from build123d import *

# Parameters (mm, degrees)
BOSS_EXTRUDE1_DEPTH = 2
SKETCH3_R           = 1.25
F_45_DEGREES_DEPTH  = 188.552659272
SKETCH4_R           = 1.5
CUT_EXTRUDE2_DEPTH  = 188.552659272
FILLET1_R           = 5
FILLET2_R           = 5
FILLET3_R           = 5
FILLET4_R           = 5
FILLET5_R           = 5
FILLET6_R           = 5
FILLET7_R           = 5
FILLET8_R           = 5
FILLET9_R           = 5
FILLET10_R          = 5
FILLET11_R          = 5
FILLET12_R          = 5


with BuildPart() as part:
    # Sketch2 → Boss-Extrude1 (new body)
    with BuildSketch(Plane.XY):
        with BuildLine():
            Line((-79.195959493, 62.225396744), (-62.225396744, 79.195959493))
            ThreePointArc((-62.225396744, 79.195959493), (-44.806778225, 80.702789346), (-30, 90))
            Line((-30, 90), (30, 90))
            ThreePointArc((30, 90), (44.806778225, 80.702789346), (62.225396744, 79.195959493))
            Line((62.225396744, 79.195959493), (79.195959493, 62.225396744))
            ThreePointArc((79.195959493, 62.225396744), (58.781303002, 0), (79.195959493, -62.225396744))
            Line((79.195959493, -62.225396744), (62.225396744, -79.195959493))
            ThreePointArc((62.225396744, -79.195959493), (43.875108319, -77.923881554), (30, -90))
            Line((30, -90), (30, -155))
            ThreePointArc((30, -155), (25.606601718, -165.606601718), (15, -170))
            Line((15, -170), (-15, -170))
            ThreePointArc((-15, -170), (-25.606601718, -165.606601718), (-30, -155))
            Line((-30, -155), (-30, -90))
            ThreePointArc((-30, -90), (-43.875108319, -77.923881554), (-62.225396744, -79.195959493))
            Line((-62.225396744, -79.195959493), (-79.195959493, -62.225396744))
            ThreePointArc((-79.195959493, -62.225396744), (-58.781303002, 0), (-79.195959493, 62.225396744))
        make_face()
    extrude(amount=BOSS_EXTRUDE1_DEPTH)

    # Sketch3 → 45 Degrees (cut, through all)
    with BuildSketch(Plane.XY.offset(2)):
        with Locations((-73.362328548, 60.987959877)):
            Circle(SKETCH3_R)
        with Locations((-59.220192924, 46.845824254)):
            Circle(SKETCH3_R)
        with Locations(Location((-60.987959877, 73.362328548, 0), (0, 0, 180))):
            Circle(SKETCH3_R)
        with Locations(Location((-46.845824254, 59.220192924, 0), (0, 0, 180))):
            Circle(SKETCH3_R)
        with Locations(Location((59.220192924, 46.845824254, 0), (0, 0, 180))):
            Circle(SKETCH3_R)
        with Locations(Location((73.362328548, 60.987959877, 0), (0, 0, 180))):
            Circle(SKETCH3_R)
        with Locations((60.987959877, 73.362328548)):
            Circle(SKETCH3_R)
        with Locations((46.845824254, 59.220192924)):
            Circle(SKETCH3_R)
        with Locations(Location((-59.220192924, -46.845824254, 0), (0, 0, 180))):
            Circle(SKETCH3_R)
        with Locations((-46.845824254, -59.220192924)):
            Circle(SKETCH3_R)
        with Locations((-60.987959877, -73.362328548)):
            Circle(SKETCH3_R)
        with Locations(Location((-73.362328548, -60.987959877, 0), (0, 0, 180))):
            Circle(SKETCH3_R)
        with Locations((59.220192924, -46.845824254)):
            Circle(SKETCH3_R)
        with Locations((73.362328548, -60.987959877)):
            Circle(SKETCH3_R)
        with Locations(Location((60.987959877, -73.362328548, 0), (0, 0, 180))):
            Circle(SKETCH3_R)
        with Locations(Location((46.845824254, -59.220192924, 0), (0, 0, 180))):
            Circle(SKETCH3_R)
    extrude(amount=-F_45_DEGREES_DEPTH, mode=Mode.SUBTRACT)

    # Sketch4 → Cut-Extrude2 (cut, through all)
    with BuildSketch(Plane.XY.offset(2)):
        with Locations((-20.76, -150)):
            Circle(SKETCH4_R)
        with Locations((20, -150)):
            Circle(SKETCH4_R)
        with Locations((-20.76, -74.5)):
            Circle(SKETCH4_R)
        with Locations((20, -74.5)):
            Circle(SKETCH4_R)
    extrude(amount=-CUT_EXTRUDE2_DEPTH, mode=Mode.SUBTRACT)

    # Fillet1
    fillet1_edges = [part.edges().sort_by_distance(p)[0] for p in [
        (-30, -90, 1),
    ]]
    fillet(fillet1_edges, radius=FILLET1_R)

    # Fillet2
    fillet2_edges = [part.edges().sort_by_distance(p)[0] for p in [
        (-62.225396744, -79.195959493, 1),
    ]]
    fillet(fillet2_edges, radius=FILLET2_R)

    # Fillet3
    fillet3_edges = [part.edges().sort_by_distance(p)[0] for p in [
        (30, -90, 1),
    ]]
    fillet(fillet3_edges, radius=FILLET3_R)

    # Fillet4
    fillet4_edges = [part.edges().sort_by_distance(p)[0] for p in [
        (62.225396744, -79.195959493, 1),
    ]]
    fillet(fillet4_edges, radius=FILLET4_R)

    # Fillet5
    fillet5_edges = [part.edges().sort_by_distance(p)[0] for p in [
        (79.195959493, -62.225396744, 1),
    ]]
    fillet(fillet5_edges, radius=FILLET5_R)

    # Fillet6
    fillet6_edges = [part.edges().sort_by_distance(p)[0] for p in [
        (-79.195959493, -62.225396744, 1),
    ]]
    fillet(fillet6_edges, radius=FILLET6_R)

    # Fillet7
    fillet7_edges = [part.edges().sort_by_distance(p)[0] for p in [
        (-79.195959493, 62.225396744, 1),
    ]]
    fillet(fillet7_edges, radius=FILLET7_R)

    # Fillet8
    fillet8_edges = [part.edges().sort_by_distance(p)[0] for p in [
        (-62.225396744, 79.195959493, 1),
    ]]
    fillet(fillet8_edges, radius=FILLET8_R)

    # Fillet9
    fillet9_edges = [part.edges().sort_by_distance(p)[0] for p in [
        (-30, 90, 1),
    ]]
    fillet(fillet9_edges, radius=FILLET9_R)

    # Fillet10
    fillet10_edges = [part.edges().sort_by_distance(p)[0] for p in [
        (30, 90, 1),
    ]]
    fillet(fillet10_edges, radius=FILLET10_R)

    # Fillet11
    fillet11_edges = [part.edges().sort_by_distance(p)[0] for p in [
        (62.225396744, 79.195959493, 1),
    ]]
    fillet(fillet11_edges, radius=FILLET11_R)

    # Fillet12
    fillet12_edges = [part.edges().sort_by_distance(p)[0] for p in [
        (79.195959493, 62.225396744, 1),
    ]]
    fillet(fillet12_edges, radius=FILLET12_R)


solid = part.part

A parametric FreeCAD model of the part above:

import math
import FreeCAD as App
import Part
import Sketcher
Q = App.Units.Quantity


def edges_at(feature, points):
    """Names of the edges that pass closest to the given points."""
    edges = feature.Shape.Edges
    near = lambda p: min(range(len(edges)), key=lambda i: edges[i].distToShape(Part.Vertex(*p))[0])
    return sorted({f"Edge{near(p) + 1}" for p in points})

doc = App.newDocument("Part")
params = doc.addObject("Spreadsheet::Sheet", "Params")
for row, (alias, value) in enumerate([
    ("sketch1_radius", "15 mm"),
    ("sketch1_width", "30 mm"),
    ("sketch1_height", "65 mm"),
    ("sketch1_length", "24 mm"),
    ("pad1_length", "2 mm"),
    ("sketch2_diameter", "2.5 mm"),
    ("sketch3_diameter", "3 mm"),
    ("fillet_radius", "5 mm"),
    ("fillet2_radius", "5 mm"),
    ("fillet3_radius", "5 mm"),
    ("fillet4_radius", "5 mm"),
    ("fillet5_radius", "5 mm"),
    ("fillet6_radius", "5 mm"),
    ("fillet7_radius", "5 mm"),
    ("fillet8_radius", "5 mm"),
    ("fillet9_radius", "5 mm"),
    ("fillet10_radius", "5 mm"),
    ("fillet11_radius", "5 mm"),
    ("fillet12_radius", "5 mm"),
], start=1):
    params.set(f"A{row}", alias)
    params.set(f"B{row}", "=" + value)
    params.setAlias(f"B{row}", alias)

body = doc.addObject("PartDesign::Body", "Body")

# Sketch on XY plane
sketch1 = body.newObject("Sketcher::SketchObject", "Sketch")
sketch1.AttachmentSupport = (doc.getObject("XY_Plane"), [""])
sketch1.MapMode = "FlatFace"
sketch1.addGeometry([
    Part.LineSegment(App.Vector(-62, 79, 0), App.Vector(-79, 62, 0)),  # 0
    Part.ArcOfCircle(Part.Circle(App.Vector(-164, 0, 0), App.Vector(0, 0, 1), 105), math.radians(-36), math.radians(36)),  # 1
    Part.LineSegment(App.Vector(-79, -62, 0), App.Vector(-62, -79, 0)),  # 2
    Part.ArcOfCircle(Part.Circle(App.Vector(-52, -101, 0), App.Vector(0, 0, 1), 24), math.radians(26), math.radians(116)),  # 3
    Part.LineSegment(App.Vector(-30, -90, 0), App.Vector(-30, -155, 0)),  # 4
    Part.ArcOfCircle(Part.Circle(App.Vector(-15, -155, 0), App.Vector(0, 0, 1), 15), math.radians(180), math.radians(270)),  # 5
    Part.LineSegment(App.Vector(-15, -170, 0), App.Vector(15, -170, 0)),  # 6
    Part.ArcOfCircle(Part.Circle(App.Vector(15, -155, 0), App.Vector(0, 0, 1), 15), math.radians(-90), math.radians(0)),  # 7
    Part.LineSegment(App.Vector(30, -155, 0), App.Vector(30, -90, 0)),  # 8
    Part.ArcOfCircle(Part.Circle(App.Vector(52, -101, 0), App.Vector(0, 0, 1), 24), math.radians(64), math.radians(154)),  # 9
    Part.LineSegment(App.Vector(62, -79, 0), App.Vector(79, -62, 0)),  # 10
    Part.ArcOfCircle(Part.Circle(App.Vector(164, 0, 0), App.Vector(0, 0, 1), 105), math.radians(144), math.radians(216)),  # 11
    Part.LineSegment(App.Vector(79, 62, 0), App.Vector(62, 79, 0)),  # 12
    Part.ArcOfCircle(Part.Circle(App.Vector(57, 116, 0), App.Vector(0, 0, 1), 37), math.radians(-136), math.radians(-81)),  # 13
    Part.LineSegment(App.Vector(30, 90, 0), App.Vector(-30, 90, 0)),  # 14
    Part.ArcOfCircle(Part.Circle(App.Vector(-57, 116, 0), App.Vector(0, 0, 1), 37), math.radians(-99), math.radians(-44)),  # 15
], False)
sketch1.addConstraint([
    Sketcher.Constraint("Coincident", 0, 2, 1, 2),
    Sketcher.Constraint("Coincident", 1, 1, 2, 1),
    Sketcher.Constraint("Coincident", 2, 2, 3, 2),
    Sketcher.Constraint("Coincident", 3, 1, 4, 1),
    Sketcher.Constraint("Tangent", 4, 2, 5, 1),
    Sketcher.Constraint("Tangent", 5, 2, 6, 1),
    Sketcher.Constraint("Tangent", 6, 2, 7, 1),
    Sketcher.Constraint("Tangent", 7, 2, 8, 1),
    Sketcher.Constraint("Coincident", 8, 2, 9, 2),
    Sketcher.Constraint("Coincident", 9, 1, 10, 1),
    Sketcher.Constraint("Coincident", 10, 2, 11, 2),
    Sketcher.Constraint("Coincident", 11, 1, 12, 1),
    Sketcher.Constraint("Coincident", 12, 2, 13, 2),
    Sketcher.Constraint("Coincident", 13, 1, 14, 1),
    Sketcher.Constraint("Coincident", 14, 2, 15, 2),
    Sketcher.Constraint("Coincident", 15, 1, 0, 1),
    Sketcher.Constraint("Vertical", 4),
    Sketcher.Constraint("Horizontal", 6),
    Sketcher.Constraint("Vertical", 8),
    Sketcher.Constraint("Horizontal", 14),
    Sketcher.Constraint("Equal", 5, 7),
    Sketcher.Constraint("Equal", 3, 9),
    Sketcher.Constraint("Equal", 1, 11),
    Sketcher.Constraint("Equal", 13, 15),
    Sketcher.Constraint("Symmetric", 1, 3, 11, 3, -1, 1),
    Sketcher.Constraint("Symmetric", 2, 2, 12, 2, -1, 1),
    Sketcher.Constraint("Symmetric", 3, 1, 13, 1, -1, 1),
    Sketcher.Constraint("Symmetric", 8, 2, 14, 2, -1, 1),
    Sketcher.Constraint("Symmetric", 9, 1, 15, 1, -1, 1),
    Sketcher.Constraint("Symmetric", 3, 3, 9, 3, -2),
    Sketcher.Constraint("Symmetric", 1, 1, 10, 2, -2),
    Sketcher.Constraint("Perpendicular", 0, 2),
    Sketcher.Constraint("Perpendicular", 2, 10),
    Sketcher.Constraint("Perpendicular", 10, 12),
    Sketcher.Constraint("Horizontal", 13, 3, 15, 3),
    Sketcher.Constraint("Radius", 5, Q("15 mm")),
    Sketcher.Constraint("DistanceX", 6, 1, 6, 2, Q("30 mm")),
    Sketcher.Constraint("DistanceY", 4, 2, 4, 1, Q("65 mm")),
    Sketcher.Constraint("Distance", 0, Q("24 mm")),
    Sketcher.Constraint("DistanceY", 5, 3, -1, 1, Q("155 mm")),
    Sketcher.Constraint("Radius", 1, Q("105.041155 mm")),
    Sketcher.Constraint("Radius", 3, Q("24.033346 mm")),
    Sketcher.Constraint("Radius", 13, Q("37.202804 mm")),
    Sketcher.Constraint("DistanceX", 1, 3, 0, 2, Q("84.626499 mm")),
    Sketcher.Constraint("DistanceX", 1, 3, -1, 1, Q("163.822458 mm")),
])
sketch1.setExpression("Constraints[35]", "Params.sketch1_radius")
sketch1.setExpression("Constraints[36]", "Params.sketch1_width")
sketch1.setExpression("Constraints[37]", "Params.sketch1_height")
sketch1.setExpression("Constraints[38]", "Params.sketch1_length")
pad1 = body.newObject("PartDesign::Pad", "Pad")
pad1.Profile = sketch1
pad1.setExpression("Length", "Params.pad1_length")

# Sketch on XY plane
sketch2 = body.newObject("Sketcher::SketchObject", "Sketch001")
sketch2.AttachmentSupport = (doc.getObject("XY_Plane"), [""])
sketch2.MapMode = "FlatFace"
sketch2.AttachmentOffset = App.Placement(App.Vector(0, 0, 2), App.Rotation())
sketch2.addGeometry([
    Part.Circle(App.Vector(-73.4, 61, 0), App.Vector(0, 0, 1), 1.2),  # 0
    Part.Circle(App.Vector(-59.2, 46.8, 0), App.Vector(0, 0, 1), 1.2),  # 1
    Part.Circle(App.Vector(-61, 73.4, 0), App.Vector(0, 0, 1), 1.2),  # 2
    Part.Circle(App.Vector(-46.8, 59.2, 0), App.Vector(0, 0, 1), 1.2),  # 3
    Part.Circle(App.Vector(59.2, 46.8, 0), App.Vector(0, 0, 1), 1.2),  # 4
    Part.Circle(App.Vector(73.4, 61, 0), App.Vector(0, 0, 1), 1.2),  # 5
    Part.Circle(App.Vector(61, 73.4, 0), App.Vector(0, 0, 1), 1.2),  # 6
    Part.Circle(App.Vector(46.8, 59.2, 0), App.Vector(0, 0, 1), 1.2),  # 7
    Part.Circle(App.Vector(-59.2, -46.8, 0), App.Vector(0, 0, 1), 1.2),  # 8
    Part.Circle(App.Vector(-46.8, -59.2, 0), App.Vector(0, 0, 1), 1.2),  # 9
    Part.Circle(App.Vector(-61, -73.4, 0), App.Vector(0, 0, 1), 1.2),  # 10
    Part.Circle(App.Vector(-73.4, -61, 0), App.Vector(0, 0, 1), 1.2),  # 11
    Part.Circle(App.Vector(59.2, -46.8, 0), App.Vector(0, 0, 1), 1.2),  # 12
    Part.Circle(App.Vector(73.4, -61, 0), App.Vector(0, 0, 1), 1.2),  # 13
    Part.Circle(App.Vector(61, -73.4, 0), App.Vector(0, 0, 1), 1.2),  # 14
    Part.Circle(App.Vector(46.8, -59.2, 0), App.Vector(0, 0, 1), 1.2),  # 15
], False)
sketch2.addConstraint([
    Sketcher.Constraint("Equal", 0, 1),
    Sketcher.Constraint("Equal", 1, 2),
    Sketcher.Constraint("Equal", 2, 3),
    Sketcher.Constraint("Equal", 3, 4),
    Sketcher.Constraint("Equal", 4, 5),
    Sketcher.Constraint("Equal", 5, 6),
    Sketcher.Constraint("Equal", 6, 7),
    Sketcher.Constraint("Equal", 7, 8),
    Sketcher.Constraint("Equal", 8, 9),
    Sketcher.Constraint("Equal", 9, 10),
    Sketcher.Constraint("Equal", 10, 11),
    Sketcher.Constraint("Equal", 11, 12),
    Sketcher.Constraint("Equal", 12, 13),
    Sketcher.Constraint("Equal", 13, 14),
    Sketcher.Constraint("Equal", 14, 15),
    Sketcher.Constraint("Symmetric", 4, 3, 8, 3, -1, 1),
    Sketcher.Constraint("Symmetric", 7, 3, 9, 3, -1, 1),
    Sketcher.Constraint("Symmetric", 6, 3, 10, 3, -1, 1),
    Sketcher.Constraint("Symmetric", 5, 3, 11, 3, -1, 1),
    Sketcher.Constraint("Symmetric", 1, 3, 12, 3, -1, 1),
    Sketcher.Constraint("Symmetric", 0, 3, 13, 3, -1, 1),
    Sketcher.Constraint("Symmetric", 2, 3, 14, 3, -1, 1),
    Sketcher.Constraint("Symmetric", 3, 3, 15, 3, -1, 1),
    Sketcher.Constraint("Symmetric", 1, 3, 4, 3, -2),
    Sketcher.Constraint("Symmetric", 0, 3, 5, 3, -2),
    Sketcher.Constraint("Symmetric", 2, 3, 6, 3, -2),
    Sketcher.Constraint("Symmetric", 3, 3, 7, 3, -2),
    Sketcher.Constraint("Diameter", 0, Q("2.5 mm")),
    Sketcher.Constraint("DistanceX", 0, 3, -1, 1, Q("73.362329 mm")),
    Sketcher.Constraint("DistanceY", -1, 1, 0, 3, Q("60.98796 mm")),
    Sketcher.Constraint("DistanceX", 2, 3, -1, 1, Q("60.98796 mm")),
    Sketcher.Constraint("DistanceY", -1, 1, 2, 3, Q("73.362329 mm")),
    Sketcher.Constraint("DistanceX", 1, 3, 3, 3, Q("12.374369 mm")),
    Sketcher.Constraint("DistanceY", 1, 3, 3, 3, Q("12.374369 mm")),
    Sketcher.Constraint("DistanceX", 0, 3, 4, 3, Q("132.582521 mm")),
    Sketcher.Constraint("DistanceY", 8, 3, 1, 3, Q("93.691649 mm")),
])
sketch2.setExpression("Constraints[27]", "Params.sketch2_diameter")
pocket1 = body.newObject("PartDesign::Pocket", "Pocket")
pocket1.Profile = sketch2
pocket1.Type = "ThroughAll"

# Sketch on XY plane
sketch3 = body.newObject("Sketcher::SketchObject", "Sketch002")
sketch3.AttachmentSupport = (doc.getObject("XY_Plane"), [""])
sketch3.MapMode = "FlatFace"
sketch3.AttachmentOffset = App.Placement(App.Vector(0, 0, 2), App.Rotation())
sketch3.addGeometry([
    Part.Circle(App.Vector(-20.8, -150, 0), App.Vector(0, 0, 1), 1.5),
    Part.Circle(App.Vector(20, -150, 0), App.Vector(0, 0, 1), 1.5),
    Part.Circle(App.Vector(-20.8, -74.5, 0), App.Vector(0, 0, 1), 1.5),
    Part.Circle(App.Vector(20, -74.5, 0), App.Vector(0, 0, 1), 1.5),
], False)
sketch3.addConstraint([
    Sketcher.Constraint("Equal", 0, 1),
    Sketcher.Constraint("Equal", 1, 2),
    Sketcher.Constraint("Equal", 2, 3),
    Sketcher.Constraint("Horizontal", 0, 3, 1, 3),
    Sketcher.Constraint("Horizontal", 2, 3, 3, 3),
    Sketcher.Constraint("Vertical", 0, 3, 2, 3),
    Sketcher.Constraint("Vertical", 1, 3, 3, 3),
    Sketcher.Constraint("Diameter", 0, Q("3 mm")),
    Sketcher.Constraint("DistanceY", 0, 3, -1, 1, Q("150 mm")),
    Sketcher.Constraint("DistanceX", -1, 1, 1, 3, Q("20 mm")),
    Sketcher.Constraint("DistanceY", 2, 3, -1, 1, Q("74.5 mm")),
    Sketcher.Constraint("DistanceX", 0, 3, -1, 1, Q("20.76 mm")),
])
sketch3.setExpression("Constraints[7]", "Params.sketch3_diameter")
pocket2 = body.newObject("PartDesign::Pocket", "Pocket001")
pocket2.Profile = sketch3
pocket2.Type = "ThroughAll"
doc.recompute()

fillet = body.newObject("PartDesign::Fillet", "Fillet")
fillet.Base = (pocket2, edges_at(pocket2, [(-30, -90, 1)]))
fillet.setExpression("Radius", "Params.fillet_radius")
doc.recompute()

fillet2 = body.newObject("PartDesign::Fillet", "Fillet001")
fillet2.Base = (fillet, edges_at(fillet, [(-62.225, -79.196, 1)]))
fillet2.setExpression("Radius", "Params.fillet2_radius")
doc.recompute()

fillet3 = body.newObject("PartDesign::Fillet", "Fillet002")
fillet3.Base = (fillet2, edges_at(fillet2, [(30, -90, 1)]))
fillet3.setExpression("Radius", "Params.fillet3_radius")
doc.recompute()

fillet4 = body.newObject("PartDesign::Fillet", "Fillet003")
fillet4.Base = (fillet3, edges_at(fillet3, [(62.225, -79.196, 1)]))
fillet4.setExpression("Radius", "Params.fillet4_radius")
doc.recompute()

fillet5 = body.newObject("PartDesign::Fillet", "Fillet004")
fillet5.Base = (fillet4, edges_at(fillet4, [(79.196, -62.225, 1)]))
fillet5.setExpression("Radius", "Params.fillet5_radius")
doc.recompute()

fillet6 = body.newObject("PartDesign::Fillet", "Fillet005")
fillet6.Base = (fillet5, edges_at(fillet5, [(-79.196, -62.225, 1)]))
fillet6.setExpression("Radius", "Params.fillet6_radius")
doc.recompute()

fillet7 = body.newObject("PartDesign::Fillet", "Fillet006")
fillet7.Base = (fillet6, edges_at(fillet6, [(-79.196, 62.225, 1)]))
fillet7.setExpression("Radius", "Params.fillet7_radius")
doc.recompute()

fillet8 = body.newObject("PartDesign::Fillet", "Fillet007")
fillet8.Base = (fillet7, edges_at(fillet7, [(-62.225, 79.196, 1)]))
fillet8.setExpression("Radius", "Params.fillet8_radius")
doc.recompute()

fillet9 = body.newObject("PartDesign::Fillet", "Fillet008")
fillet9.Base = (fillet8, edges_at(fillet8, [(-30, 90, 1)]))
fillet9.setExpression("Radius", "Params.fillet9_radius")
doc.recompute()

fillet10 = body.newObject("PartDesign::Fillet", "Fillet009")
fillet10.Base = (fillet9, edges_at(fillet9, [(30, 90, 1)]))
fillet10.setExpression("Radius", "Params.fillet10_radius")
doc.recompute()

fillet11 = body.newObject("PartDesign::Fillet", "Fillet010")
fillet11.Base = (fillet10, edges_at(fillet10, [(62.225, 79.196, 1)]))
fillet11.setExpression("Radius", "Params.fillet11_radius")
doc.recompute()

fillet12 = body.newObject("PartDesign::Fillet", "Fillet011")
fillet12.Base = (fillet11, edges_at(fillet11, [(79.196, 62.225, 1)]))
fillet12.setExpression("Radius", "Params.fillet12_radius")

doc.recompute()
